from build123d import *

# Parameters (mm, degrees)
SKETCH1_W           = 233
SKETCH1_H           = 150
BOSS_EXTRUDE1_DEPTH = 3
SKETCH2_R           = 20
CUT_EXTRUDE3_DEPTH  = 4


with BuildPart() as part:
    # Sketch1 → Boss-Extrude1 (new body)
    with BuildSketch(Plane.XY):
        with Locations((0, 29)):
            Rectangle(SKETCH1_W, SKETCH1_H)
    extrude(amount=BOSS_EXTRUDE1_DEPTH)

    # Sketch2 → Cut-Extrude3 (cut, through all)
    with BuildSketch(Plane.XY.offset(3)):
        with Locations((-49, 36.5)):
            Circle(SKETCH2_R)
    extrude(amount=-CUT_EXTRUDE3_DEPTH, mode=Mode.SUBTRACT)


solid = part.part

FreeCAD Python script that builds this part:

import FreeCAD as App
import Part
import Sketcher
from FreeCAD import Vector
Q = App.Units.Quantity

doc = App.newDocument("Part")
params = doc.addObject("Spreadsheet::Sheet", "Params")
for row, (alias, value) in enumerate([
    ("sketch1_width", "233 mm"),
    ("sketch1_height", "150 mm"),
    ("pad1_length", "3 mm"),
    ("sketch2_diameter", "40 mm"),
], start=1):
    params.set(f"A{row}", alias)
    params.set(f"B{row}", "=" + value)
    params.setAlias(f"B{row}", alias)

body = doc.addObject("PartDesign::Body", "Body")

# Sketch on XY plane
sketch1 = body.newObject("Sketcher::SketchObject", "Sketch")
sketch1.AttachmentSupport = (doc.getObject("XY_Plane"), [""])
sketch1.MapMode = "FlatFace"
sketch1.addGeometry(Part.LineSegment(Vector(-116, 104, 0), Vector(-116, -46, 0)), False)
sketch1.addGeometry(Part.LineSegment(Vector(-116, -46, 0), Vector(116, -46, 0)), False)
sketch1.addGeometry(Part.LineSegment(Vector(116, -46, 0), Vector(116, 104, 0)), False)
sketch1.addGeometry(Part.LineSegment(Vector(116, 104, 0), Vector(-116, 104, 0)), False)
sketch1.addConstraint(Sketcher.Constraint("Coincident", 0, 2, 1, 1))
sketch1.addConstraint(Sketcher.Constraint("Coincident", 1, 2, 2, 1))
sketch1.addConstraint(Sketcher.Constraint("Coincident", 2, 2, 3, 1))
sketch1.addConstraint(Sketcher.Constraint("Coincident", 3, 2, 0, 1))
sketch1.addConstraint(Sketcher.Constraint("Vertical", 0))
sketch1.addConstraint(Sketcher.Constraint("Horizontal", 1))
sketch1.addConstraint(Sketcher.Constraint("Vertical", 2))
sketch1.addConstraint(Sketcher.Constraint("Horizontal", 3))
sketch1.addConstraint(Sketcher.Constraint("DistanceX", 1, 1, 1, 2, Q("233 mm")))
sketch1.addConstraint(Sketcher.Constraint("DistanceY", 0, 2, 0, 1, Q("150 mm")))
sketch1.addConstraint(Sketcher.Constraint("DistanceY", 0, 2, -1, 1, Q("46 mm")))
sketch1.addConstraint(Sketcher.Constraint("DistanceX", 0, 2, -1, 1, Q("116.5 mm")))
sketch1.setExpression("Constraints[8]", "Params.sketch1_width")
sketch1.setExpression("Constraints[9]", "Params.sketch1_height")
pad1 = body.newObject("PartDesign::Pad", "Pad")
pad1.Profile = sketch1
pad1.setExpression("Length", "Params.pad1_length")

# Sketch on XY plane
sketch2 = body.newObject("Sketcher::SketchObject", "Sketch001")
sketch2.AttachmentSupport = (doc.getObject("XY_Plane"), [""])
sketch2.MapMode = "FlatFace"
sketch2.AttachmentOffset = App.Placement(Vector(0, 0, 3), App.Rotation())
sketch2.addGeometry(Part.Circle(Vector(-49, 36, 0), Vector(0, 0, 1), 20), False)
sketch2.addConstraint(Sketcher.Constraint("Diameter", 0, Q("40 mm")))
sketch2.addConstraint(Sketcher.Constraint("DistanceX", 0, 3, -1, 1, Q("49 mm")))
sketch2.addConstraint(Sketcher.Constraint("DistanceY", -1, 1, 0, 3, Q("36.5 mm")))
sketch2.setExpression("Constraints[0]", "Params.sketch2_diameter")
pocket1 = body.newObject("PartDesign::Pocket", "Pocket")
pocket1.Profile = sketch2
pocket1.Type = "ThroughAll"

doc.recompute()
